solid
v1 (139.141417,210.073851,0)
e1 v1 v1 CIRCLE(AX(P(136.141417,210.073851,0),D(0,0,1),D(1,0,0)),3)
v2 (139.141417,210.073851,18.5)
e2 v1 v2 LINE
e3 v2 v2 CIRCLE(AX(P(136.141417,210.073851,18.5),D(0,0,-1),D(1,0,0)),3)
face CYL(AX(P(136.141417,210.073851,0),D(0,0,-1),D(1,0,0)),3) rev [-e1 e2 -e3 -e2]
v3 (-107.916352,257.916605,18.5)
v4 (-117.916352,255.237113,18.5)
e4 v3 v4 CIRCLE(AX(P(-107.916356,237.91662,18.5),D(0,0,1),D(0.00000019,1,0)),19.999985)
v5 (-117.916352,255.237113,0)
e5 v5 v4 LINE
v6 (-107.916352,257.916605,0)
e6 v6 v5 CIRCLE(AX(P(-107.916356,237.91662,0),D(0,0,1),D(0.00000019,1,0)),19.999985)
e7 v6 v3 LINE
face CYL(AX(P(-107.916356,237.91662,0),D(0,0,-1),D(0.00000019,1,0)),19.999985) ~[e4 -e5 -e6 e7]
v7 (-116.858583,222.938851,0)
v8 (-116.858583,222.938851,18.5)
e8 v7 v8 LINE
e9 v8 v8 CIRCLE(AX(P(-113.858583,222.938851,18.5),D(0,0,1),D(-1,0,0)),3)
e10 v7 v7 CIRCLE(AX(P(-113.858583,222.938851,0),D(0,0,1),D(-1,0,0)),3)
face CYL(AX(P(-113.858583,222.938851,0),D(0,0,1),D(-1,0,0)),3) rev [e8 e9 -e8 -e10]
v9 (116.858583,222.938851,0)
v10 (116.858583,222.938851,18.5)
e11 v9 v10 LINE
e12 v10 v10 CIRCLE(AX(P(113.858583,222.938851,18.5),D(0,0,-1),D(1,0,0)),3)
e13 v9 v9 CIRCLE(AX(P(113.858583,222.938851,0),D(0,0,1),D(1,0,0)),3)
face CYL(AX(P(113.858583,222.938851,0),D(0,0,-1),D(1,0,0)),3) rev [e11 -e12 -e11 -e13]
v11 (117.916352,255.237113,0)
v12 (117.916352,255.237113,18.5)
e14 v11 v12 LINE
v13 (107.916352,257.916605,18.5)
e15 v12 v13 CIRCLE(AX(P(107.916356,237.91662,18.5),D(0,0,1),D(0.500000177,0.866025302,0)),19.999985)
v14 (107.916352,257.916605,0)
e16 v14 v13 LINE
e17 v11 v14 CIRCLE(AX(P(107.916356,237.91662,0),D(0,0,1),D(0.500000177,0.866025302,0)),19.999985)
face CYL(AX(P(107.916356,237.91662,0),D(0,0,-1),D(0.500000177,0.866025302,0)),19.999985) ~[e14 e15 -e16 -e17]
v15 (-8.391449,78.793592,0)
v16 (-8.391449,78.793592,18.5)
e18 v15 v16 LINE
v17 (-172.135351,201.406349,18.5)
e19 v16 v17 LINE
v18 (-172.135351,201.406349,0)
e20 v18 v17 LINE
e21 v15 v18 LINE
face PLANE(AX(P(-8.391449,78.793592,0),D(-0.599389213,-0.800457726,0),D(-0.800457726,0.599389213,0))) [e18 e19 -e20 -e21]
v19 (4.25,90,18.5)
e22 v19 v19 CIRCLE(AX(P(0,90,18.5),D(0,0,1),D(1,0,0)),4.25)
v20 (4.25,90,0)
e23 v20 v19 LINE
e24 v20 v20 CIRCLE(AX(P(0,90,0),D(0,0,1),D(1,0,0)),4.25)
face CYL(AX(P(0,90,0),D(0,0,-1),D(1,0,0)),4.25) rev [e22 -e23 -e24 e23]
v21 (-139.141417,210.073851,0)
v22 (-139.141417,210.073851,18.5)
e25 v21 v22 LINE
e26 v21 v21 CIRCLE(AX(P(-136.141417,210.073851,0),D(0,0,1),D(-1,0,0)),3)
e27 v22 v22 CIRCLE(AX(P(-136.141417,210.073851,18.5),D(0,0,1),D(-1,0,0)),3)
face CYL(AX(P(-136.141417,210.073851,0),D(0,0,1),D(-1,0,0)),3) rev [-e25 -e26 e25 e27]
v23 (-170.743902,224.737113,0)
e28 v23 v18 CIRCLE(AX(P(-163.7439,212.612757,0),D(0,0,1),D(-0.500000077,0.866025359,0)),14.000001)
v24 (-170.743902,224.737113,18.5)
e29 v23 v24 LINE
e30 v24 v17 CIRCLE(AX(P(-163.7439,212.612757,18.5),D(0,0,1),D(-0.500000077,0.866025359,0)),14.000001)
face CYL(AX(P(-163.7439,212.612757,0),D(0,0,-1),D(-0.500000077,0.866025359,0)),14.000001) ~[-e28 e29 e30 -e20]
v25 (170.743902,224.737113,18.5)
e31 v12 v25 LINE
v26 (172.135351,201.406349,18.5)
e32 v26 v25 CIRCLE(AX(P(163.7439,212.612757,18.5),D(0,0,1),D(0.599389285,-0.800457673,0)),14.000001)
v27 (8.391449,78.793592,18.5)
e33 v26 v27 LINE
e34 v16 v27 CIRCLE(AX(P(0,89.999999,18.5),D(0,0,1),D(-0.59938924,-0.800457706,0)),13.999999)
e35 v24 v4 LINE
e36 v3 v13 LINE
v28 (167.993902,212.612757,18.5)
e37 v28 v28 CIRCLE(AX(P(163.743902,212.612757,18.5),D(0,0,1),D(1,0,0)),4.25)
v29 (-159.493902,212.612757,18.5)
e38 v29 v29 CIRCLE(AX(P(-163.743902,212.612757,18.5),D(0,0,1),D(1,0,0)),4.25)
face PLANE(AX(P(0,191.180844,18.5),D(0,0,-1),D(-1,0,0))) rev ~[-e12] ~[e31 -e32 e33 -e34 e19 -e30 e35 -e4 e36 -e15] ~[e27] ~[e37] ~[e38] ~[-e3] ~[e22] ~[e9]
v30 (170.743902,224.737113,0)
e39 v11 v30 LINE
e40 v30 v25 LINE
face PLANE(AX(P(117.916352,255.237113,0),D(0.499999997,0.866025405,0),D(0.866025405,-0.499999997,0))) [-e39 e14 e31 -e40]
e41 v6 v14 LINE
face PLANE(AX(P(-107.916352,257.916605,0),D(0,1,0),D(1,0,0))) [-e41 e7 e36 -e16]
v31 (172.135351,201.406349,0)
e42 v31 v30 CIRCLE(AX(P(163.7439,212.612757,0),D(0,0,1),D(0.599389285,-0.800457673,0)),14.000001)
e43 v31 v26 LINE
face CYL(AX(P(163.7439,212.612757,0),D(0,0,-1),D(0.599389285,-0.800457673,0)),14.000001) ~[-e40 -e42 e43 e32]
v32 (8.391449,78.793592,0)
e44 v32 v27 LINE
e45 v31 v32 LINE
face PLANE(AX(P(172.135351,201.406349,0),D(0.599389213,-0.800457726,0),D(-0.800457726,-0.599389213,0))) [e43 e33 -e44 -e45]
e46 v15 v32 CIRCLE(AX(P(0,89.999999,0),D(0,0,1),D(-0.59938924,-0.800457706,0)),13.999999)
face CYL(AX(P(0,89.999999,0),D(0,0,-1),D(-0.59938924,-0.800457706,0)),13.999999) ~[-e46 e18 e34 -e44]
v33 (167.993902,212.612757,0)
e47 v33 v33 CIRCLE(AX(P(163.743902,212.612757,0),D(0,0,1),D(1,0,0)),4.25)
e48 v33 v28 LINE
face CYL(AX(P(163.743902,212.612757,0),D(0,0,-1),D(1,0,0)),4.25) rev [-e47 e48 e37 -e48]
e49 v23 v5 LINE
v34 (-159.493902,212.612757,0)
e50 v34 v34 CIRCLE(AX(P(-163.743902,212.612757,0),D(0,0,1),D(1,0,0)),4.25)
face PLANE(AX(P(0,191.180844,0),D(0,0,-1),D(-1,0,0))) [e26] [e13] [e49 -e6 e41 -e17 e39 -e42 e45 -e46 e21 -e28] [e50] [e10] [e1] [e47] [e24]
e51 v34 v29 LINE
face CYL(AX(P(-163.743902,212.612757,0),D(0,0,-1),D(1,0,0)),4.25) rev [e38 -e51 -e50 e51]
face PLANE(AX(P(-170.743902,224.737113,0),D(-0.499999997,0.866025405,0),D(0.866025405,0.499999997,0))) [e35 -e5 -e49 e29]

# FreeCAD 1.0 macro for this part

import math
import FreeCAD as App
import Part
import Sketcher
from FreeCAD import Vector
Q = App.Units.Quantity

doc = App.newDocument("Part")
body = doc.addObject("PartDesign::Body", "Body")

# Sketch on XY plane
sketch1 = body.newObject("Sketcher::SketchObject", "Sketch")
sketch1.AttachmentSupport = (doc.getObject("XY_Plane"), [""])
sketch1.MapMode = "FlatFace"
sketch1.addGeometry(Part.LineSegment(Vector(-117.9, 255.2, 0), Vector(-170.7, 224.7, 0)), False)
sketch1.addGeometry(Part.ArcOfCircle(Part.Circle(Vector(-163.7, 212.6, 0), Vector(0, 0, 1), 14), math.radians(120), math.radians(233)), False)
sketch1.addGeometry(Part.LineSegment(Vector(-172.1, 201.4, 0), Vector(-8.4, 78.8, 0)), False)
sketch1.addGeometry(Part.ArcOfCircle(Part.Circle(Vector(0, 90, 0), Vector(0, 0, 1), 14), math.radians(-127), math.radians(-53)), False)
sketch1.addGeometry(Part.LineSegment(Vector(8.4, 78.8, 0), Vector(172.1, 201.4, 0)), False)
sketch1.addGeometry(Part.ArcOfCircle(Part.Circle(Vector(163.7, 212.6, 0), Vector(0, 0, 1), 14), math.radians(-53), math.radians(60)), False)
sketch1.addGeometry(Part.LineSegment(Vector(170.7, 224.7, 0), Vector(117.9, 255.2, 0)), False)
sketch1.addGeometry(Part.ArcOfCircle(Part.Circle(Vector(107.9, 237.9, 0), Vector(0, 0, 1), 20), math.radians(60), math.radians(90)), False)
sketch1.addGeometry(Part.LineSegment(Vector(107.9, 257.9, 0), Vector(-107.9, 257.9, 0)), False)
sketch1.addGeometry(Part.ArcOfCircle(Part.Circle(Vector(-107.9, 237.9, 0), Vector(0, 0, 1), 20), math.radians(90), math.radians(120)), False)
sketch1.addGeometry(Part.Circle(Vector(0, 90, 0), Vector(0, 0, 1), 4.2), False)
sketch1.addGeometry(Part.Circle(Vector(163.7, 212.6, 0), Vector(0, 0, 1), 4.2), False)
sketch1.addGeometry(Part.Circle(Vector(-163.7, 212.6, 0), Vector(0, 0, 1), 4.2), False)
sketch1.addConstraint(Sketcher.Constraint("Tangent", 0, 2, 1, 1))
sketch1.addConstraint(Sketcher.Constraint("Tangent", 1, 2, 2, 1))
sketch1.addConstraint(Sketcher.Constraint("Tangent", 2, 2, 3, 1))
sketch1.addConstraint(Sketcher.Constraint("Tangent", 3, 2, 4, 1))
sketch1.addConstraint(Sketcher.Constraint("Tangent", 4, 2, 5, 1))
sketch1.addConstraint(Sketcher.Constraint("Tangent", 5, 2, 6, 1))
sketch1.addConstraint(Sketcher.Constraint("Tangent", 6, 2, 7, 1))
sketch1.addConstraint(Sketcher.Constraint("Tangent", 7, 2, 8, 1))
sketch1.addConstraint(Sketcher.Constraint("Tangent", 8, 2, 9, 1))
sketch1.addConstraint(Sketcher.Constraint("Tangent", 9, 2, 0, 1))
sketch1.addConstraint(Sketcher.Constraint("Horizontal", 8))
sketch1.addConstraint(Sketcher.Constraint("Coincident", 10, 3, 3, 3))
sketch1.addConstraint(Sketcher.Constraint("Coincident", 11, 3, 5, 3))
sketch1.addConstraint(Sketcher.Constraint("Coincident", 12, 3, 1, 3))
sketch1.addConstraint(Sketcher.Constraint("Equal", 1, 3))
sketch1.addConstraint(Sketcher.Constraint("Equal", 3, 5))
sketch1.addConstraint(Sketcher.Constraint("Equal", 7, 9))
sketch1.addConstraint(Sketcher.Constraint("Equal", 10, 11))
sketch1.addConstraint(Sketcher.Constraint("Equal", 11, 12))
sketch1.addConstraint(Sketcher.Constraint("Symmetric", 1, 3, 5, 3, -2))
sketch1.addConstraint(Sketcher.Constraint("PointOnObject", 3, 3, -2))
sketch1.addConstraint(Sketcher.Constraint("Horizontal", 0, 2, 5, 2))
sketch1.addConstraint(Sketcher.Constraint("Radius", 1, Q("14.000001 mm")))
sketch1.addConstraint(Sketcher.Constraint("Diameter", 10, Q("8.5 mm")))
sketch1.addConstraint(Sketcher.Constraint("Angle", 0, Q("-150 deg")))
sketch1.addConstraint(Sketcher.Constraint("Distance", 0, Q("61 mm")))
sketch1.addConstraint(Sketcher.Constraint("DistanceY", -1, 1, 3, 3, Q("89.999999 mm")))
sketch1.addConstraint(Sketcher.Constraint("DistanceX", 7, 2, 6, 2, Q("10 mm")))
sketch1.addConstraint(Sketcher.Constraint("DistanceX", 6, 2, 4, 2, Q("54.218999 mm")))
sketch1.addConstraint(Sketcher.Constraint("DistanceX", 1, 3, -1, 1, Q("163.7439 mm")))
pad1 = body.newObject("PartDesign::Pad", "Pad")
pad1.Profile = sketch1
pad1.Length = 18.5

# Sketch on XY plane
sketch2 = body.newObject("Sketcher::SketchObject", "Sketch001")
sketch2.AttachmentSupport = (doc.getObject("XY_Plane"), [""])
sketch2.MapMode = "FlatFace"
sketch2.addGeometry(Part.Circle(Vector(113.9, 222.9, 0), Vector(0, 0, 1), 3), False)
sketch2.addGeometry(Part.Circle(Vector(136.1, 210.1, 0), Vector(0, 0, 1), 3), False)
sketch2.addConstraint(Sketcher.Constraint("Equal", 0, 1))
sketch2.addConstraint(Sketcher.Constraint("Diameter", 0, Q("6 mm")))
sketch2.addConstraint(Sketcher.Constraint("DistanceY", 1, 3, 0, 3, Q("12.865 mm")))
sketch2.addConstraint(Sketcher.Constraint("DistanceY", -1, 1, 0, 3, Q("222.938851 mm")))
sketch2.addConstraint(Sketcher.Constraint("DistanceX", -1, 1, 0, 3, Q("113.858583 mm")))
sketch2.addConstraint(Sketcher.Constraint("DistanceX", -1, 1, 1, 3, Q("136.141417 mm")))
pocket1 = body.newObject("PartDesign::Pocket", "Pocket")
pocket1.Profile = sketch2
pocket1.Type = "ThroughAll"
pocket1.Midplane = True
doc.recompute()

mirrored = body.newObject("PartDesign::Mirrored", "Mirrored")
mirrored.Originals = [pocket1]
mirrored.MirrorPlane = (doc.getObject("YZ_Plane"), [""])
body.Tip = mirrored

doc.recompute()
